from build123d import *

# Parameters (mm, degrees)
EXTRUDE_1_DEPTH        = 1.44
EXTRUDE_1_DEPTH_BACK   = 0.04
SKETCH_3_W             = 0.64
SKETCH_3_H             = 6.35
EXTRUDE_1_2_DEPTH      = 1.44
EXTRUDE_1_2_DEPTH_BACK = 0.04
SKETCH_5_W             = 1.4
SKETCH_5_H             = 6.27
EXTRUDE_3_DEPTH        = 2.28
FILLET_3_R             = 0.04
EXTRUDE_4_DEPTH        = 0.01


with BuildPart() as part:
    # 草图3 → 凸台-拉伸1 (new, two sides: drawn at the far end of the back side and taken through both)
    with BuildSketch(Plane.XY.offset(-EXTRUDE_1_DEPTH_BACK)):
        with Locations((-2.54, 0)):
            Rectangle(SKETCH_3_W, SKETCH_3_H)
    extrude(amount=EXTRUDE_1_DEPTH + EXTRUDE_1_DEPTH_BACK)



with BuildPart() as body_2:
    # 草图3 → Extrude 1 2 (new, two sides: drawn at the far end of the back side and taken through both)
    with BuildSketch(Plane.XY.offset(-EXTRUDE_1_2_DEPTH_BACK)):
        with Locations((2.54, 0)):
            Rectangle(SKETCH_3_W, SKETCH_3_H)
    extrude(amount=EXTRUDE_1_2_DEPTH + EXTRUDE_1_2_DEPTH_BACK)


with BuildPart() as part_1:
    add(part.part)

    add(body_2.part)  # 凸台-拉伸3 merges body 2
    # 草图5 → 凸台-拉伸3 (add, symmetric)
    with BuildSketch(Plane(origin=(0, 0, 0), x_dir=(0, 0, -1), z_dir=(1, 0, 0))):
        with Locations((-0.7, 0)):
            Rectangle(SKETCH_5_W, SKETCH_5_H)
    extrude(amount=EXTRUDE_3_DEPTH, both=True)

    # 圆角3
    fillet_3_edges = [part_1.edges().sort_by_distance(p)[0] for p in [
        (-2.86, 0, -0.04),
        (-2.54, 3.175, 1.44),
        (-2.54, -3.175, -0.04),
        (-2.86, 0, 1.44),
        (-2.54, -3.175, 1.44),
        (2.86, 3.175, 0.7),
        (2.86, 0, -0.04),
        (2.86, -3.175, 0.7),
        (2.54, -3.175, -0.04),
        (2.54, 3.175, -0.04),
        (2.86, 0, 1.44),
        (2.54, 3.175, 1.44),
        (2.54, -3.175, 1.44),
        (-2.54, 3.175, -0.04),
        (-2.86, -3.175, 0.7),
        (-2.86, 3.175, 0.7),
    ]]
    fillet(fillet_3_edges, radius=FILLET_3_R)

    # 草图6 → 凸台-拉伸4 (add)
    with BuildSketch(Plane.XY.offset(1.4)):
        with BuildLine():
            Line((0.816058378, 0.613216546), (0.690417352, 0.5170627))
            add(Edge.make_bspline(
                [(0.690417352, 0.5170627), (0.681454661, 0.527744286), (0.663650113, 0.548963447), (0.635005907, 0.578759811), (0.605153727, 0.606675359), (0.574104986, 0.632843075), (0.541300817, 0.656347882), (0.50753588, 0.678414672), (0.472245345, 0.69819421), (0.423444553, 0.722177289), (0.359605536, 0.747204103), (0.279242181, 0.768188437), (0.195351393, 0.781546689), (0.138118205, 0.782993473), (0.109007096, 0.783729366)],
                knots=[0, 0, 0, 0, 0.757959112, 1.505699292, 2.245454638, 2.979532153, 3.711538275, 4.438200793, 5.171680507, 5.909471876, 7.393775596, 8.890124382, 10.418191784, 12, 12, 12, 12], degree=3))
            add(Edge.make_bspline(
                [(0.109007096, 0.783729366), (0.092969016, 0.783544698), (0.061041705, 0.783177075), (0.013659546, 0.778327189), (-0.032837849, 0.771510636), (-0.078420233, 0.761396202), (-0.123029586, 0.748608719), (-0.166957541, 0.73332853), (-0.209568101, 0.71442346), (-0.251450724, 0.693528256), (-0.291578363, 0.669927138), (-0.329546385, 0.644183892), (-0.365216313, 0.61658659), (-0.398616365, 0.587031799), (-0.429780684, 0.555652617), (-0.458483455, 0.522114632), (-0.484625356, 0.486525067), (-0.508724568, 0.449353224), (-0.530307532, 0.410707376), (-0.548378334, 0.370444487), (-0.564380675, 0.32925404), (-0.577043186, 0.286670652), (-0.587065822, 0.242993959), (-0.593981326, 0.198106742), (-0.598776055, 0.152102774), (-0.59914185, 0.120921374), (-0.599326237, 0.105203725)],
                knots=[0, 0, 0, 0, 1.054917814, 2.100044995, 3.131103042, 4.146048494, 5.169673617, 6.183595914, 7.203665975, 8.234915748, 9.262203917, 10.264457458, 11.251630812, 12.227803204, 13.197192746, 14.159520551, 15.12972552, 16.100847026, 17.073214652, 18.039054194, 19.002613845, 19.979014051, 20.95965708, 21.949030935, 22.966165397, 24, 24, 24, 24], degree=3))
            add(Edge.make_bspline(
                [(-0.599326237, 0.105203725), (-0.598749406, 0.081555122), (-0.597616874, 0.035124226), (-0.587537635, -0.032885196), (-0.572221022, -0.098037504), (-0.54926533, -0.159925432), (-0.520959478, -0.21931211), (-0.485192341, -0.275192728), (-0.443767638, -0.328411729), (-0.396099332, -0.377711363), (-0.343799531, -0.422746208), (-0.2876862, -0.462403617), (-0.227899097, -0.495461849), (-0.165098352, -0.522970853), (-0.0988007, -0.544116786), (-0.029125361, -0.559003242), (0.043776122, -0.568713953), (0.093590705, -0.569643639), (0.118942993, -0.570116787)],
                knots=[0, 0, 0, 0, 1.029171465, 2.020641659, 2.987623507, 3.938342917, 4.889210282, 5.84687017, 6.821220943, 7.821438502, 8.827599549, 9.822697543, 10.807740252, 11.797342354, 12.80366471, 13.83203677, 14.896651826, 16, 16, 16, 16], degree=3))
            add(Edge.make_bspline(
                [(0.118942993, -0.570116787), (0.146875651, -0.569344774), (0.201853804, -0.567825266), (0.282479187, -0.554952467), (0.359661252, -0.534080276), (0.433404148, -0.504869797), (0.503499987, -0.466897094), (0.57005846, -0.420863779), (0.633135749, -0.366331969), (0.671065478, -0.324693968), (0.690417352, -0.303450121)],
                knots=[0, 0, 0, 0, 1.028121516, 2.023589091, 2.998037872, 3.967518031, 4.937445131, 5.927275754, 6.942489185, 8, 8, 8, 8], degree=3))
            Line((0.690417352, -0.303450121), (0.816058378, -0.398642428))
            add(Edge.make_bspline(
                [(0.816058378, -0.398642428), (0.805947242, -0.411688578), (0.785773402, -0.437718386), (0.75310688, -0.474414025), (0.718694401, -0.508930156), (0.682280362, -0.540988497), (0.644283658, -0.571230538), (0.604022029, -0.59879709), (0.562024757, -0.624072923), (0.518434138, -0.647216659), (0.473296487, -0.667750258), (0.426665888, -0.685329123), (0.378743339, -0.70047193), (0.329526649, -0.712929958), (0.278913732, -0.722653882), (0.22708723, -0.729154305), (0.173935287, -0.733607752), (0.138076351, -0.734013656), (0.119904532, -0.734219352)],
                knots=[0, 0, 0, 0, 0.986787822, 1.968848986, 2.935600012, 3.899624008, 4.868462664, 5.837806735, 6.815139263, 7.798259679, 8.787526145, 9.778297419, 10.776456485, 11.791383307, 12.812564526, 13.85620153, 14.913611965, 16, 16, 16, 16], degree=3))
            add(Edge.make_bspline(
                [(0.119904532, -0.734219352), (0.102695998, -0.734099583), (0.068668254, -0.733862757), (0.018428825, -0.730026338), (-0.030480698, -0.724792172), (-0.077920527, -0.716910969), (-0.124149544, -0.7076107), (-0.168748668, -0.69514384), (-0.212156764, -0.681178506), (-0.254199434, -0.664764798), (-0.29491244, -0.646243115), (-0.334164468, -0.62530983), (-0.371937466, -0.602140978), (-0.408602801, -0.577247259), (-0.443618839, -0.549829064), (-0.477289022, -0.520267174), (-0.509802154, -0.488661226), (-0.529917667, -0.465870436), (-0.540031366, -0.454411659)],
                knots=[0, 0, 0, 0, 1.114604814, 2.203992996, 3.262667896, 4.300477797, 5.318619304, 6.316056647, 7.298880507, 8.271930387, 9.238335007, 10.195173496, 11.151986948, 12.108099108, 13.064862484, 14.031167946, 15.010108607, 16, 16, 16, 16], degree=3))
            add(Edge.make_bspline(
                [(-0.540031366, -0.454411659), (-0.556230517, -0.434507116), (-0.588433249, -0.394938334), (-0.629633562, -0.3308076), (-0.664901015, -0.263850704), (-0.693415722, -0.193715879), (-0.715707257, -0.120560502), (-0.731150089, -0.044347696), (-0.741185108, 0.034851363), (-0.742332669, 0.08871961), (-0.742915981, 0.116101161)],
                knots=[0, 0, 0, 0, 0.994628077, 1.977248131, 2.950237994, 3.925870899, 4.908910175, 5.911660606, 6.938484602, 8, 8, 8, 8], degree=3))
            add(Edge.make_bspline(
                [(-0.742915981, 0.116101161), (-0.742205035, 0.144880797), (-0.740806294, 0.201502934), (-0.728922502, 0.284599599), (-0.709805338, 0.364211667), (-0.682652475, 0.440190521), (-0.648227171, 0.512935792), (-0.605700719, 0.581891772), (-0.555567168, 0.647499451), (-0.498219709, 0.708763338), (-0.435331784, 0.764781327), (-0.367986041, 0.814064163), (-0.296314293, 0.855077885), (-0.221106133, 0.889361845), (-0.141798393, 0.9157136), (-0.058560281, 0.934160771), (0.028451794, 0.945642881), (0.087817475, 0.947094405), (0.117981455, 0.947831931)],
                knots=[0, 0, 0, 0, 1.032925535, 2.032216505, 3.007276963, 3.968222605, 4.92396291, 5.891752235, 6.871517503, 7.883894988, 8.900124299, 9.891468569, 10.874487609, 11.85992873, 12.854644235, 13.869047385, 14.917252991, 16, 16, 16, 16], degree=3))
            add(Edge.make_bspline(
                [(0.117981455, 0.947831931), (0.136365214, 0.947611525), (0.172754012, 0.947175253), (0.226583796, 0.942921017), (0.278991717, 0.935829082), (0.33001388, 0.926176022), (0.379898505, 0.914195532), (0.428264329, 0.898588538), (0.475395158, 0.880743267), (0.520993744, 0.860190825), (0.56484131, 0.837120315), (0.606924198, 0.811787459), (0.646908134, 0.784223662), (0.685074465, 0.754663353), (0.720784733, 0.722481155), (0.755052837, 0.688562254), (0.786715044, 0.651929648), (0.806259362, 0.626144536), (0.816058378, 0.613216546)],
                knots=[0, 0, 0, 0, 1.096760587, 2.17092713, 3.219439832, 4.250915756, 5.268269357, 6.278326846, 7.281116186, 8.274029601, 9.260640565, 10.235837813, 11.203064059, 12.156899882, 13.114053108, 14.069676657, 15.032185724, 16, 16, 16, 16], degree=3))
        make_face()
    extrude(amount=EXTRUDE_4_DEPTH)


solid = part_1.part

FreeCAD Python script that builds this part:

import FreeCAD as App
import Part
import Sketcher
Q = App.Units.Quantity


def edges_at(feature, points):
    """Names of the edges that pass closest to the given points."""
    edges = feature.Shape.Edges
    near = lambda p: min(range(len(edges)), key=lambda i: edges[i].distToShape(Part.Vertex(*p))[0])
    return sorted({f"Edge{near(p) + 1}" for p in points})


def add_polygon(sketch, points):
    """Adds a closed chain of lines whose ends are joined by coincident constraints."""
    first, n = sketch.GeometryCount, len(points)
    for a, b in zip(points, points[1:] + points[:1]):
        sketch.addGeometry(Part.LineSegment(App.Vector(*a, 0), App.Vector(*b, 0)), False)
    for i in range(n):
        sketch.addConstraint(Sketcher.Constraint("Coincident", first + i, 2, first + (i + 1) % n, 1))

doc = App.newDocument("Part")
params = doc.addObject("Spreadsheet::Sheet", "Params")
for row, (alias, value) in enumerate([
    ("sketch1_width", "0.64 mm"),
    ("sketch1_height", "6.35 mm"),
    ("pad1_length", "1.44 mm"),
    ("pad1_length2", "0.04 mm"),
    ("sketch2_width", "0.64 mm"),
    ("sketch2_height", "6.35 mm"),
    ("pad2_length", "1.44 mm"),
    ("pad2_length2", "0.04 mm"),
    ("sketch3_height", "1.4 mm"),
    ("sketch3_width", "6.27 mm"),
    ("pad3_length", "4.56 mm"),
    ("fillet_radius", "0.04 mm"),
    ("pad4_length", "0.01 mm"),
], start=1):
    params.set(f"A{row}", alias)
    params.set(f"B{row}", "=" + value)
    params.setAlias(f"B{row}", alias)

body = doc.addObject("PartDesign::Body", "Body")

# Sketch on XY plane
sketch1 = doc.addObject("Sketcher::SketchObject", "Sketch")
body.addObject(sketch1)
sketch1.AttachmentSupport = (doc.XY_Plane, [""])
sketch1.MapMode = "FlatFace"
add_polygon(sketch1, [(-2.86, 3.175), (-2.86, -3.175), (-2.22, -3.175), (-2.22, 3.175)])  # lines 0-3
sketch1.addConstraint([
    Sketcher.Constraint("Vertical", 0),
    Sketcher.Constraint("Horizontal", 1),
    Sketcher.Constraint("Vertical", 2),
    Sketcher.Constraint("Horizontal", 3),
    Sketcher.Constraint("DistanceX", 1, 1, 1, 2, Q("0.64 mm")),
    Sketcher.Constraint("DistanceY", 0, 2, 0, 1, Q("6.35 mm")),
    Sketcher.Constraint("DistanceX", 0, 2, -1, 1, Q("2.86 mm")),
    Sketcher.Constraint("DistanceY", 0, 2, -1, 1, Q("3.175 mm")),
])
sketch1.setExpression("Constraints[8]", "Params.sketch1_width")
sketch1.setExpression("Constraints[9]", "Params.sketch1_height")
pad1 = doc.addObject("PartDesign::Pad", "Pad")
body.addObject(pad1)
pad1.Profile = sketch1
pad1.Type = "TwoLengths"
pad1.setExpression("Length", "Params.pad1_length")
pad1.setExpression("Length2", "Params.pad1_length2")
body2 = doc.addObject("PartDesign::Body", "Body001")

# Sketch on XY plane
sketch2 = doc.addObject("Sketcher::SketchObject", "Sketch001")
body2.addObject(sketch2)
sketch2.AttachmentSupport = (doc.getObject("XY_Plane001"), [""])
sketch2.MapMode = "FlatFace"
add_polygon(sketch2, [(2.22, 3.175), (2.22, -3.175), (2.86, -3.175), (2.86, 3.175)])  # lines 0-3
sketch2.addConstraint([
    Sketcher.Constraint("Vertical", 0),
    Sketcher.Constraint("Horizontal", 1),
    Sketcher.Constraint("Vertical", 2),
    Sketcher.Constraint("Horizontal", 3),
    Sketcher.Constraint("DistanceX", 1, 1, 1, 2, Q("0.64 mm")),
    Sketcher.Constraint("DistanceY", 0, 2, 0, 1, Q("6.35 mm")),
    Sketcher.Constraint("DistanceX", -1, 1, 0, 2, Q("2.22 mm")),
    Sketcher.Constraint("DistanceY", 0, 2, -1, 1, Q("3.175 mm")),
])
sketch2.setExpression("Constraints[8]", "Params.sketch2_width")
sketch2.setExpression("Constraints[9]", "Params.sketch2_height")
pad2 = doc.addObject("PartDesign::Pad", "Pad001")
body2.addObject(pad2)
pad2.Profile = sketch2
pad2.Type = "TwoLengths"
pad2.setExpression("Length", "Params.pad2_length")
pad2.setExpression("Length2", "Params.pad2_length2")
body.AllowCompound = True
doc.recompute()

boolean = doc.addObject("PartDesign::Boolean", "Boolean")
body.addObject(boolean)
boolean.Type = "Fuse"
boolean.addObjects([body2])

# Sketch on YZ plane
sketch3 = doc.addObject("Sketcher::SketchObject", "Sketch002")
body.addObject(sketch3)
sketch3.AttachmentSupport = (doc.YZ_Plane, [""])
sketch3.MapMode = "FlatFace"
add_polygon(sketch3, [(3.135, 1.4), (-3.135, 1.4), (-3.135, 0), (3.135, 0)])  # lines 0-3
sketch3.addConstraint([
    Sketcher.Constraint("Horizontal", 0),
    Sketcher.Constraint("Vertical", 1),
    Sketcher.Constraint("Horizontal", 2),
    Sketcher.Constraint("Vertical", 3),
    Sketcher.Constraint("Symmetric", 1, 2, 2, 2, -1, 1),
    Sketcher.Constraint("DistanceY", 1, 2, 1, 1, Q("1.4 mm")),
    Sketcher.Constraint("DistanceX", 0, 2, 0, 1, Q("6.27 mm")),
])
sketch3.setExpression("Constraints[9]", "Params.sketch3_height")
sketch3.setExpression("Constraints[10]", "Params.sketch3_width")
pad3 = doc.addObject("PartDesign::Pad", "Pad002")
body.addObject(pad3)
pad3.Profile = sketch3
pad3.setExpression("Length", "Params.pad3_length")
pad3.Midplane = True
doc.recompute()

fillet = doc.addObject("PartDesign::Fillet", "Fillet")
body.addObject(fillet)
fillet.Base = (pad3, edges_at(pad3, [
    (-2.86, 0, -0.04),
    (-2.54, 3.175, 1.44),
    (-2.54, -3.175, -0.04),
    (-2.86, 0, 1.44),
    (-2.54, -3.175, 1.44),
    (2.86, 3.175, 0.7),
    (2.86, 0, -0.04),
    (2.86, -3.175, 0.7),
    (2.54, -3.175, -0.04),
    (2.54, 3.175, -0.04),
    (2.86, 0, 1.44),
    (2.54, 3.175, 1.44),
    (2.54, -3.175, 1.44),
    (-2.54, 3.175, -0.04),
    (-2.86, -3.175, 0.7),
    (-2.86, 3.175, 0.7),
]))
fillet.setExpression("Radius", "Params.fillet_radius")

# Sketch on XY plane
sketch4 = doc.addObject("Sketcher::SketchObject", "Sketch003")
body.addObject(sketch4)
sketch4.AttachmentSupport = (doc.XY_Plane, [""])
sketch4.MapMode = "FlatFace"
sketch4.AttachmentOffset = App.Placement(App.Vector(0, 0, 1.4), App.Rotation())
sketch4.addGeometry([
    Part.LineSegment(App.Vector(0.690417, 0.517063, 0), App.Vector(0.816058, 0.613217, 0)),  # 0
    Part.BSplineCurve([App.Vector(0.117981, 0.947832, 0), App.Vector(0.136365, 0.947612, 0), App.Vector(0.172754, 0.947175, 0), App.Vector(0.226584, 0.942921, 0), App.Vector(0.278992, 0.935829, 0), App.Vector(0.330014, 0.926176, 0), App.Vector(0.379899, 0.914196, 0), App.Vector(0.428264, 0.898589, 0), App.Vector(0.475395, 0.880743, 0), App.Vector(0.520994, 0.860191, 0), App.Vector(0.564841, 0.83712, 0), App.Vector(0.606924, 0.811787, 0), App.Vector(0.646908, 0.784224, 0), App.Vector(0.685074, 0.754663, 0), App.Vector(0.720785, 0.722481, 0), App.Vector(0.755053, 0.688562, 0), App.Vector(0.786715, 0.65193, 0), App.Vector(0.806259, 0.626145, 0), App.Vector(0.816058, 0.613217, 0)], [4, 1, 1, 1, 1, 1, 1, 1, 1, 1, 1, 1, 1, 1, 1, 1, 4], [0, 1.096760587, 2.17092713, 3.219439832, 4.250915756, 5.268269357, 6.278326846, 7.281116186, 8.274029601, 9.260640565, 10.235837813, 11.203064059, 12.156899882, 13.114053108, 14.069676657, 15.032185724, 16], False, 3, [1, 1, 1, 1, 1, 1, 1, 1, 1, 1, 1, 1, 1, 1, 1, 1, 1, 1, 1], False),  # 1
    Part.BSplineCurve([App.Vector(-0.742916, 0.116101, 0), App.Vector(-0.742205, 0.144881, 0), App.Vector(-0.740806, 0.201503, 0), App.Vector(-0.728923, 0.2846, 0), App.Vector(-0.709805, 0.364212, 0), App.Vector(-0.682652, 0.440191, 0), App.Vector(-0.648227, 0.512936, 0), App.Vector(-0.605701, 0.581892, 0), App.Vector(-0.555567, 0.647499, 0), App.Vector(-0.49822, 0.708763, 0), App.Vector(-0.435332, 0.764781, 0), App.Vector(-0.367986, 0.814064, 0), App.Vector(-0.296314, 0.855078, 0), App.Vector(-0.221106, 0.889362, 0), App.Vector(-0.141798, 0.915714, 0), App.Vector(-0.05856, 0.934161, 0), App.Vector(0.028452, 0.945643, 0), App.Vector(0.087817, 0.947094, 0), App.Vector(0.117981, 0.947832, 0)], [4, 1, 1, 1, 1, 1, 1, 1, 1, 1, 1, 1, 1, 1, 1, 1, 4], [0, 1.032925535, 2.032216505, 3.007276963, 3.968222605, 4.92396291, 5.891752235, 6.871517503, 7.883894988, 8.900124299, 9.891468569, 10.874487609, 11.85992873, 12.854644235, 13.869047385, 14.917252991, 16], False, 3, [1, 1, 1, 1, 1, 1, 1, 1, 1, 1, 1, 1, 1, 1, 1, 1, 1, 1, 1], False),  # 2
    Part.BSplineCurve([App.Vector(-0.540031, -0.454412, 0), App.Vector(-0.556231, -0.434507, 0), App.Vector(-0.588433, -0.394938, 0), App.Vector(-0.629634, -0.330808, 0), App.Vector(-0.664901, -0.263851, 0), App.Vector(-0.693416, -0.193716, 0), App.Vector(-0.715707, -0.120561, 0), App.Vector(-0.73115, -0.044348, 0), App.Vector(-0.741185, 0.034851, 0), App.Vector(-0.742333, 0.08872, 0), App.Vector(-0.742916, 0.116101, 0)], [4, 1, 1, 1, 1, 1, 1, 1, 4], [0, 0.994628077, 1.977248131, 2.950237994, 3.925870899, 4.908910175, 5.911660606, 6.938484602, 8], False, 3, [1, 1, 1, 1, 1, 1, 1, 1, 1, 1, 1], False),  # 3
    Part.BSplineCurve([App.Vector(0.119905, -0.734219, 0), App.Vector(0.102696, -0.7341, 0), App.Vector(0.068668, -0.733863, 0), App.Vector(0.018429, -0.730026, 0), App.Vector(-0.030481, -0.724792, 0), App.Vector(-0.077921, -0.716911, 0), App.Vector(-0.12415, -0.707611, 0), App.Vector(-0.168749, -0.695144, 0), App.Vector(-0.212157, -0.681179, 0), App.Vector(-0.254199, -0.664765, 0), App.Vector(-0.294912, -0.646243, 0), App.Vector(-0.334164, -0.62531, 0), App.Vector(-0.371937, -0.602141, 0), App.Vector(-0.408603, -0.577247, 0), App.Vector(-0.443619, -0.549829, 0), App.Vector(-0.477289, -0.520267, 0), App.Vector(-0.509802, -0.488661, 0), App.Vector(-0.529918, -0.46587, 0), App.Vector(-0.540031, -0.454412, 0)], [4, 1, 1, 1, 1, 1, 1, 1, 1, 1, 1, 1, 1, 1, 1, 1, 4], [0, 1.114604814, 2.203992996, 3.262667896, 4.300477797, 5.318619304, 6.316056647, 7.298880507, 8.271930387, 9.238335007, 10.195173496, 11.151986948, 12.108099108, 13.064862484, 14.031167946, 15.010108607, 16], False, 3, [1, 1, 1, 1, 1, 1, 1, 1, 1, 1, 1, 1, 1, 1, 1, 1, 1, 1, 1], False),  # 4
    Part.BSplineCurve([App.Vector(0.816058, -0.398642, 0), App.Vector(0.805947, -0.411689, 0), App.Vector(0.785773, -0.437718, 0), App.Vector(0.753107, -0.474414, 0), App.Vector(0.718694, -0.50893, 0), App.Vector(0.68228, -0.540988, 0), App.Vector(0.644284, -0.571231, 0), App.Vector(0.604022, -0.598797, 0), App.Vector(0.562025, -0.624073, 0), App.Vector(0.518434, -0.647217, 0), App.Vector(0.473296, -0.66775, 0), App.Vector(0.426666, -0.685329, 0), App.Vector(0.378743, -0.700472, 0), App.Vector(0.329527, -0.71293, 0), App.Vector(0.278914, -0.722654, 0), App.Vector(0.227087, -0.729154, 0), App.Vector(0.173935, -0.733608, 0), App.Vector(0.138076, -0.734014, 0), App.Vector(0.119905, -0.734219, 0)], [4, 1, 1, 1, 1, 1, 1, 1, 1, 1, 1, 1, 1, 1, 1, 1, 4], [0, 0.986787822, 1.968848986, 2.935600012, 3.899624008, 4.868462664, 5.837806735, 6.815139263, 7.798259679, 8.787526145, 9.778297419, 10.776456485, 11.791383307, 12.812564526, 13.85620153, 14.913611965, 16], False, 3, [1, 1, 1, 1, 1, 1, 1, 1, 1, 1, 1, 1, 1, 1, 1, 1, 1, 1, 1], False),  # 5
    Part.LineSegment(App.Vector(0.816058, -0.398642, 0), App.Vector(0.690417, -0.30345, 0)),  # 6
    Part.BSplineCurve([App.Vector(0.118943, -0.570117, 0), App.Vector(0.146876, -0.569345, 0), App.Vector(0.201854, -0.567825, 0), App.Vector(0.282479, -0.554952, 0), App.Vector(0.359661, -0.53408, 0), App.Vector(0.433404, -0.50487, 0), App.Vector(0.5035, -0.466897, 0), App.Vector(0.570058, -0.420864, 0), App.Vector(0.633136, -0.366332, 0), App.Vector(0.671065, -0.324694, 0), App.Vector(0.690417, -0.30345, 0)], [4, 1, 1, 1, 1, 1, 1, 1, 4], [0, 1.028121516, 2.023589091, 2.998037872, 3.967518031, 4.937445131, 5.927275754, 6.942489185, 8], False, 3, [1, 1, 1, 1, 1, 1, 1, 1, 1, 1, 1], False),  # 7
    Part.BSplineCurve([App.Vector(-0.599326, 0.105204, 0), App.Vector(-0.598749, 0.081555, 0), App.Vector(-0.597617, 0.035124, 0), App.Vector(-0.587538, -0.032885, 0), App.Vector(-0.572221, -0.098038, 0), App.Vector(-0.549265, -0.159925, 0), App.Vector(-0.520959, -0.219312, 0), App.Vector(-0.485192, -0.275193, 0), App.Vector(-0.443768, -0.328412, 0), App.Vector(-0.396099, -0.377711, 0), App.Vector(-0.3438, -0.422746, 0), App.Vector(-0.287686, -0.462404, 0), App.Vector(-0.227899, -0.495462, 0), App.Vector(-0.165098, -0.522971, 0), App.Vector(-0.098801, -0.544117, 0), App.Vector(-0.029125, -0.559003, 0), App.Vector(0.043776, -0.568714, 0), App.Vector(0.093591, -0.569644, 0), App.Vector(0.118943, -0.570117, 0)], [4, 1, 1, 1, 1, 1, 1, 1, 1, 1, 1, 1, 1, 1, 1, 1, 4], [0, 1.029171465, 2.020641659, 2.987623507, 3.938342917, 4.889210282, 5.84687017, 6.821220943, 7.821438502, 8.827599549, 9.822697543, 10.807740252, 11.797342354, 12.80366471, 13.83203677, 14.896651826, 16], False, 3, [1, 1, 1, 1, 1, 1, 1, 1, 1, 1, 1, 1, 1, 1, 1, 1, 1, 1, 1], False),  # 8
    Part.BSplineCurve([App.Vector(0.109007, 0.783729, 0), App.Vector(0.092969, 0.783545, 0), App.Vector(0.061042, 0.783177, 0), App.Vector(0.01366, 0.778327, 0), App.Vector(-0.032838, 0.771511, 0), App.Vector(-0.07842, 0.761396, 0), App.Vector(-0.12303, 0.748609, 0), App.Vector(-0.166958, 0.733329, 0), App.Vector(-0.209568, 0.714423, 0), App.Vector(-0.251451, 0.693528, 0), App.Vector(-0.291578, 0.669927, 0), App.Vector(-0.329546, 0.644184, 0), App.Vector(-0.365216, 0.616587, 0), App.Vector(-0.398616, 0.587032, 0), App.Vector(-0.429781, 0.555653, 0), App.Vector(-0.458483, 0.522115, 0), App.Vector(-0.484625, 0.486525, 0), App.Vector(-0.508725, 0.449353, 0), App.Vector(-0.530308, 0.410707, 0), App.Vector(-0.548378, 0.370444, 0), App.Vector(-0.564381, 0.329254, 0), App.Vector(-0.577043, 0.286671, 0), App.Vector(-0.587066, 0.242994, 0), App.Vector(-0.593981, 0.198107, 0), App.Vector(-0.598776, 0.152103, 0), App.Vector(-0.599142, 0.120921, 0), App.Vector(-0.599326, 0.105204, 0)], [4, 1, 1, 1, 1, 1, 1, 1, 1, 1, 1, 1, 1, 1, 1, 1, 1, 1, 1, 1, 1, 1, 1, 1, 4], [0, 1.054917814, 2.100044995, 3.131103042, 4.146048494, 5.169673617, 6.183595914, 7.203665975, 8.234915748, 9.262203917, 10.264457458, 11.251630812, 12.227803204, 13.197192746, 14.159520551, 15.12972552, 16.100847026, 17.073214652, 18.039054194, 19.002613845, 19.979014051, 20.95965708, 21.949030935, 22.966165397, 24], False, 3, [1, 1, 1, 1, 1, 1, 1, 1, 1, 1, 1, 1, 1, 1, 1, 1, 1, 1, 1, 1, 1, 1, 1, 1, 1, 1, 1], False),  # 9
    Part.BSplineCurve([App.Vector(0.690417, 0.517063, 0), App.Vector(0.681455, 0.527744, 0), App.Vector(0.66365, 0.548963, 0), App.Vector(0.635006, 0.57876, 0), App.Vector(0.605154, 0.606675, 0), App.Vector(0.574105, 0.632843, 0), App.Vector(0.541301, 0.656348, 0), App.Vector(0.507536, 0.678415, 0), App.Vector(0.472245, 0.698194, 0), App.Vector(0.423445, 0.722177, 0), App.Vector(0.359606, 0.747204, 0), App.Vector(0.279242, 0.768188, 0), App.Vector(0.195351, 0.781547, 0), App.Vector(0.138118, 0.782993, 0), App.Vector(0.109007, 0.783729, 0)], [4, 1, 1, 1, 1, 1, 1, 1, 1, 1, 1, 1, 4], [0, 0.757959112, 1.505699292, 2.245454638, 2.979532153, 3.711538275, 4.438200793, 5.171680507, 5.909471876, 7.393775596, 8.890124382, 10.418191784, 12], False, 3, [1, 1, 1, 1, 1, 1, 1, 1, 1, 1, 1, 1, 1, 1, 1], False),  # 10
], False)
sketch4.addConstraint([
    Sketcher.Constraint("Block", 1),
    Sketcher.Constraint("Block", 2),
    Sketcher.Constraint("Block", 3),
    Sketcher.Constraint("Block", 4),
    Sketcher.Constraint("Block", 5),
    Sketcher.Constraint("Block", 7),
    Sketcher.Constraint("Block", 8),
    Sketcher.Constraint("Block", 9),
    Sketcher.Constraint("Block", 10),
    Sketcher.Constraint("Coincident", 0, 2, 1, 2),
    Sketcher.Constraint("Coincident", 5, 1, 6, 1),
    Sketcher.Constraint("Coincident", 6, 2, 7, 2),
    Sketcher.Constraint("Coincident", 10, 1, 0, 1),
])
pad4 = doc.addObject("PartDesign::Pad", "Pad003")
body.addObject(pad4)
pad4.Profile = sketch4
pad4.setExpression("Length", "Params.pad4_length")

doc.recompute()
